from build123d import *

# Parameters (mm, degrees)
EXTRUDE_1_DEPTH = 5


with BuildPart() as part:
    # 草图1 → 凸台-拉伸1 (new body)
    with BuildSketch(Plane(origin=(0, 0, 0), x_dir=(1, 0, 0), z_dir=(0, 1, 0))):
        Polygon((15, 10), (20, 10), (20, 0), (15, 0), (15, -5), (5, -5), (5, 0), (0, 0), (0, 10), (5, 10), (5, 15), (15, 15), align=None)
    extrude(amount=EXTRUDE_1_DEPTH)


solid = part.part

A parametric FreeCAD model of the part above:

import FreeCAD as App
import Part
import Sketcher

doc = App.newDocument("Part")
body = doc.addObject("PartDesign::Body", "Body")

# Sketch on XZ plane
sketch1 = body.newObject("Sketcher::SketchObject", "Sketch")
sketch1.AttachmentSupport = (doc.getObject("XZ_Plane"), [""])
sketch1.MapMode = "FlatFace"
sketch1.addGeometry(Part.LineSegment(App.Vector(20, -10, 0), App.Vector(15, -10, 0)), False)
sketch1.addGeometry(Part.LineSegment(App.Vector(15, -10, 0), App.Vector(15, -15, 0)), False)
sketch1.addGeometry(Part.LineSegment(App.Vector(15, -15, 0), App.Vector(5, -15, 0)), False)
sketch1.addGeometry(Part.LineSegment(App.Vector(5, -15, 0), App.Vector(5, -10, 0)), False)
sketch1.addGeometry(Part.LineSegment(App.Vector(5, -10, 0), App.Vector(0, -10, 0)), False)
sketch1.addGeometry(Part.LineSegment(App.Vector(0, -10, 0), App.Vector(0, 0, 0)), False)
sketch1.addGeometry(Part.LineSegment(App.Vector(0, 0, 0), App.Vector(5, 0, 0)), False)
sketch1.addGeometry(Part.LineSegment(App.Vector(5, 0, 0), App.Vector(5, 5, 0)), False)
sketch1.addGeometry(Part.LineSegment(App.Vector(5, 5, 0), App.Vector(15, 5, 0)), False)
sketch1.addGeometry(Part.LineSegment(App.Vector(15, 5, 0), App.Vector(15, 0, 0)), False)
sketch1.addGeometry(Part.LineSegment(App.Vector(15, 0, 0), App.Vector(20, 0, 0)), False)
sketch1.addGeometry(Part.LineSegment(App.Vector(20, 0, 0), App.Vector(20, -10, 0)), False)
sketch1.addConstraint(Sketcher.Constraint("Coincident", 0, 2, 1, 1))
sketch1.addConstraint(Sketcher.Constraint("Coincident", 1, 2, 2, 1))
sketch1.addConstraint(Sketcher.Constraint("Coincident", 2, 2, 3, 1))
sketch1.addConstraint(Sketcher.Constraint("Coincident", 3, 2, 4, 1))
sketch1.addConstraint(Sketcher.Constraint("Coincident", 4, 2, 5, 1))
sketch1.addConstraint(Sketcher.Constraint("Coincident", 5, 2, 6, 1))
sketch1.addConstraint(Sketcher.Constraint("Coincident", 6, 2, 7, 1))
sketch1.addConstraint(Sketcher.Constraint("Coincident", 7, 2, 8, 1))
sketch1.addConstraint(Sketcher.Constraint("Coincident", 8, 2, 9, 1))
sketch1.addConstraint(Sketcher.Constraint("Coincident", 9, 2, 10, 1))
sketch1.addConstraint(Sketcher.Constraint("Coincident", 10, 2, 11, 1))
sketch1.addConstraint(Sketcher.Constraint("Coincident", 11, 2, 0, 1))
sketch1.addConstraint(Sketcher.Constraint("Horizontal", 0))
sketch1.addConstraint(Sketcher.Constraint("Vertical", 1))
sketch1.addConstraint(Sketcher.Constraint("Horizontal", 2))
sketch1.addConstraint(Sketcher.Constraint("Vertical", 3))
sketch1.addConstraint(Sketcher.Constraint("Horizontal", 4))
sketch1.addConstraint(Sketcher.Constraint("Vertical", 5))
sketch1.addConstraint(Sketcher.Constraint("Horizontal", 6))
sketch1.addConstraint(Sketcher.Constraint("Vertical", 7))
sketch1.addConstraint(Sketcher.Constraint("Horizontal", 8))
sketch1.addConstraint(Sketcher.Constraint("Vertical", 9))
sketch1.addConstraint(Sketcher.Constraint("Horizontal", 10))
sketch1.addConstraint(Sketcher.Constraint("Vertical", 11))
sketch1.addConstraint(Sketcher.Constraint("Coincident", 5, 2, -1, 1))
sketch1.addConstraint(Sketcher.Constraint("PointOnObject", 9, 2, -1))
sketch1.addConstraint(Sketcher.Constraint("Horizontal", 0, 2, 3, 2))
sketch1.addConstraint(Sketcher.Constraint("Vertical", 3, 2, 6, 2))
sketch1.addConstraint(Sketcher.Constraint("Vertical", 1, 2, 8, 2))
sketch1.addConstraint(Sketcher.Constraint("Equal", 0, 4))
sketch1.addConstraint(Sketcher.Constraint("Equal", 10, 1))
sketch1.addConstraint(Sketcher.Constraint("Equal", 8, 5))
sketch1.addConstraint(Sketcher.Constraint("Equal", 3, 7))
sketch1.addConstraint(Sketcher.Constraint("DistanceX", 0, 2, 0, 1, 5.0))
sketch1.addConstraint(Sketcher.Constraint("DistanceX", 2, 2, 2, 1, 10.0))
pad1 = body.newObject("PartDesign::Pad", "Pad")
pad1.Profile = sketch1
pad1.Length = 5
pad1.Reversed = True

doc.recompute()
